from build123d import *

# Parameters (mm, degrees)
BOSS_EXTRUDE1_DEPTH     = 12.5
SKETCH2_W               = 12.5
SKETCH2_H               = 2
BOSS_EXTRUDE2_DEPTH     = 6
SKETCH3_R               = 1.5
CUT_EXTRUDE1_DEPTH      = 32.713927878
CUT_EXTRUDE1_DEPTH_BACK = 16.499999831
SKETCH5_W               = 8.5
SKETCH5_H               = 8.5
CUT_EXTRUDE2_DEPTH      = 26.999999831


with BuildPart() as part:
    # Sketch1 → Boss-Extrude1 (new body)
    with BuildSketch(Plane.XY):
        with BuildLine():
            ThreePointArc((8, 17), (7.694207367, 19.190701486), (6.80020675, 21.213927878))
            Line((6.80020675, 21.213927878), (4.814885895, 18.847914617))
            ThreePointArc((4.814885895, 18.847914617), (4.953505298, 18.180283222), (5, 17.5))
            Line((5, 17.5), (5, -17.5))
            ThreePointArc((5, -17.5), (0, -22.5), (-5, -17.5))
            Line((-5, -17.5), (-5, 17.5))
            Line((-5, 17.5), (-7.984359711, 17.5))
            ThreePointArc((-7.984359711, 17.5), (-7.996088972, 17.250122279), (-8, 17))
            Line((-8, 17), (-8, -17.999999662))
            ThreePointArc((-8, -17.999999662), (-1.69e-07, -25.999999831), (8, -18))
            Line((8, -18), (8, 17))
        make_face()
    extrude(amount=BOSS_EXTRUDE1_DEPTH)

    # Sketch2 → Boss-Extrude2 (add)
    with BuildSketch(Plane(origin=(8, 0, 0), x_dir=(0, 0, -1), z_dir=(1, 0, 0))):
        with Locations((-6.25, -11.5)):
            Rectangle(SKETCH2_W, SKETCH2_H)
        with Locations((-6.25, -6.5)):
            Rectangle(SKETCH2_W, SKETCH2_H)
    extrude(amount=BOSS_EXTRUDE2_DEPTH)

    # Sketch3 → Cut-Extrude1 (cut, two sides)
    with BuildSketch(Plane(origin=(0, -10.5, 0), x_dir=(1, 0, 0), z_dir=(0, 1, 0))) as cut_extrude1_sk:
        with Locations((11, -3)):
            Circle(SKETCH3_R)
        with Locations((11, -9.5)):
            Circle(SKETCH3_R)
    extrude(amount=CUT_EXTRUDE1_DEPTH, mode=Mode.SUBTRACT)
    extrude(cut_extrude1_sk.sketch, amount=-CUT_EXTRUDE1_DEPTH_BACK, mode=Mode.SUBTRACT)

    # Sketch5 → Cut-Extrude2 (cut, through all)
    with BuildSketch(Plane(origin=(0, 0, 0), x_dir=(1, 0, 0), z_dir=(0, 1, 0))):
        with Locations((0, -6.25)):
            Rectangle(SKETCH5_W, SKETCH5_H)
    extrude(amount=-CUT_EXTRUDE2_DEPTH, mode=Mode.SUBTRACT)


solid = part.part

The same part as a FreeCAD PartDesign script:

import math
import FreeCAD as App
import Part
import Sketcher
Q = App.Units.Quantity


def add_polygon(sketch, points):
    """Adds a closed chain of lines whose ends are joined by coincident constraints."""
    first, n = sketch.GeometryCount, len(points)
    for a, b in zip(points, points[1:] + points[:1]):
        sketch.addGeometry(Part.LineSegment(App.Vector(*a, 0), App.Vector(*b, 0)), False)
    for i in range(n):
        sketch.addConstraint(Sketcher.Constraint("Coincident", first + i, 2, first + (i + 1) % n, 1))

doc = App.newDocument("Part")
body = doc.addObject("PartDesign::Body", "Body")

sketch1 = body.newObject("Sketcher::SketchObject", "Sketch")
sketch1.AttachmentSupport = (doc.getObject("XY_Plane"), [""])
sketch1.MapMode = "FlatFace"
sketch1.addGeometry(Part.ArcOfCircle(Part.Circle(App.Vector(0, 17, 0), App.Vector(0, 0, 1), 8), math.radians(0), math.radians(31.78552)), False)
sketch1.addGeometry(Part.LineSegment(App.Vector(6.800207, 21.213928, 0), App.Vector(4.814886, 18.847915, 0)), False)
sketch1.addGeometry(Part.ArcOfCircle(Part.Circle(App.Vector(0, 17.5, 0), App.Vector(0, 0, 1), 5), math.radians(0), math.radians(15.63945)), False)
sketch1.addGeometry(Part.LineSegment(App.Vector(5, 17.5, 0), App.Vector(5, -17.5, 0)), False)
sketch1.addGeometry(Part.ArcOfCircle(Part.Circle(App.Vector(0, -17.5, 0), App.Vector(0, 0, 1), 5), math.radians(180), math.radians(360)), False)
sketch1.addGeometry(Part.LineSegment(App.Vector(-5, -17.5, 0), App.Vector(-5, 17.5, 0)), False)
sketch1.addGeometry(Part.LineSegment(App.Vector(-5, 17.5, 0), App.Vector(-7.98436, 17.5, 0)), False)
sketch1.addGeometry(Part.ArcOfCircle(Part.Circle(App.Vector(-0.000001, 17, 0), App.Vector(0, 0, 1), 7.999999), math.radians(176.416678), math.radians(180)), False)
sketch1.addGeometry(Part.LineSegment(App.Vector(-8, 17, 0), App.Vector(-8, -18, 0)), False)
sketch1.addGeometry(Part.ArcOfCircle(Part.Circle(App.Vector(0, -18, 0), App.Vector(0, 0, 1), 8), math.radians(179.999999), math.radians(359.999999)), False)
sketch1.addGeometry(Part.LineSegment(App.Vector(8, -18, 0), App.Vector(8, 17, 0)), False)
sketch1.addConstraint(Sketcher.Constraint("Coincident", 0, 2, 1, 1))
sketch1.addConstraint(Sketcher.Constraint("Coincident", 1, 2, 2, 2))
sketch1.addConstraint(Sketcher.Constraint("Tangent", 2, 1, 3, 1))
sketch1.addConstraint(Sketcher.Constraint("Tangent", 3, 2, 4, 2))
sketch1.addConstraint(Sketcher.Constraint("Tangent", 4, 1, 5, 1))
sketch1.addConstraint(Sketcher.Constraint("Coincident", 5, 2, 6, 1))
sketch1.addConstraint(Sketcher.Constraint("Coincident", 6, 2, 7, 1))
sketch1.addConstraint(Sketcher.Constraint("Tangent", 7, 2, 8, 1))
sketch1.addConstraint(Sketcher.Constraint("Tangent", 8, 2, 9, 1))
sketch1.addConstraint(Sketcher.Constraint("Tangent", 9, 2, 10, 1))
sketch1.addConstraint(Sketcher.Constraint("Tangent", 10, 2, 0, 1))
sketch1.addConstraint(Sketcher.Constraint("Vertical", 3))
sketch1.addConstraint(Sketcher.Constraint("Vertical", 5))
sketch1.addConstraint(Sketcher.Constraint("Horizontal", 6))
sketch1.addConstraint(Sketcher.Constraint("Vertical", 8))
sketch1.addConstraint(Sketcher.Constraint("Vertical", 10))
sketch1.addConstraint(Sketcher.Constraint("Coincident", 7, 3, 0, 3))
sketch1.addConstraint(Sketcher.Constraint("Equal", 2, 4))
sketch1.addConstraint(Sketcher.Constraint("Equal", 0, 7))
sketch1.addConstraint(Sketcher.Constraint("Symmetric", 2, 3, 4, 3, -1, 1))
sketch1.addConstraint(Sketcher.Constraint("PointOnObject", 0, 3, -2))
sketch1.addConstraint(Sketcher.Constraint("Horizontal", 2, 1, 5, 2))
sketch1.addConstraint(Sketcher.Constraint("Equal", 5, 8))
sketch1.addConstraint(Sketcher.Constraint("Radius", 0, 8.0))
sketch1.addConstraint(Sketcher.Constraint("Radius", 2, 5.0))
sketch1.addConstraint(Sketcher.Constraint("DistanceY", 3, 2, 3, 1, 35.0))
sketch1.addConstraint(Sketcher.Constraint("Angle", 1, Q("-130 deg")))
sketch1.addConstraint(Sketcher.Constraint("DistanceY", -1, 1, 0, 3, 17.0))
sketch1.addConstraint(Sketcher.Constraint("Distance", 1, 3.088611))
pad1 = body.newObject("PartDesign::Pad", "Pad")
pad1.Profile = sketch1
pad1.Length = 12.5

sketch2 = body.newObject("Sketcher::SketchObject", "Sketch001")
sketch2.AttachmentSupport = (doc.getObject("YZ_Plane"), [""])
sketch2.MapMode = "FlatFace"
sketch2.AttachmentOffset = App.Placement(App.Vector(0, 0, 8), App.Rotation())
add_polygon(sketch2, [(-10.5, 12.5), (-12.5, 12.5), (-12.5, 0), (-10.5, 0)])
add_polygon(sketch2, [(-5.5, 12.5), (-7.5, 12.5), (-7.5, 0), (-5.5, 0)])
sketch2.addConstraint(Sketcher.Constraint("Horizontal", 0))
sketch2.addConstraint(Sketcher.Constraint("Vertical", 1))
sketch2.addConstraint(Sketcher.Constraint("Horizontal", 2))
sketch2.addConstraint(Sketcher.Constraint("Vertical", 3))
sketch2.addConstraint(Sketcher.Constraint("Horizontal", 4))
sketch2.addConstraint(Sketcher.Constraint("Vertical", 5))
sketch2.addConstraint(Sketcher.Constraint("Horizontal", 6))
sketch2.addConstraint(Sketcher.Constraint("Vertical", 7))
sketch2.addConstraint(Sketcher.Constraint("PointOnObject", 1, 2, -1))
sketch2.addConstraint(Sketcher.Constraint("PointOnObject", 5, 2, -1))
sketch2.addConstraint(Sketcher.Constraint("Horizontal", 3, 2, 4, 2))
sketch2.addConstraint(Sketcher.Constraint("Equal", 2, 4))
sketch2.addConstraint(Sketcher.Constraint("DistanceX", 0, 2, 0, 1, 2.0))
sketch2.addConstraint(Sketcher.Constraint("DistanceY", 1, 2, 1, 1, 12.5))
sketch2.addConstraint(Sketcher.Constraint("DistanceX", 3, 2, 4, 2, 3.0))
sketch2.addConstraint(Sketcher.Constraint("DistanceX", 0, 2, -1, 1, 12.5))
pad2 = body.newObject("PartDesign::Pad", "Pad001")
pad2.Profile = sketch2
pad2.Length = 6

sketch3 = body.newObject("Sketcher::SketchObject", "Sketch002")
sketch3.AttachmentSupport = (doc.getObject("XZ_Plane"), [""])
sketch3.MapMode = "FlatFace"
sketch3.AttachmentOffset = App.Placement(App.Vector(0, 0, 10.5), App.Rotation())
sketch3.addGeometry(Part.Circle(App.Vector(11, 3, 0), App.Vector(0, 0, 1), 1.5), False)
sketch3.addGeometry(Part.Circle(App.Vector(11, 9.5, 0), App.Vector(0, 0, 1), 1.5), False)
sketch3.addConstraint(Sketcher.Constraint("Equal", 0, 1))
sketch3.addConstraint(Sketcher.Constraint("Vertical", 0, 3, 1, 3))
sketch3.addConstraint(Sketcher.Constraint("Diameter", 0, 3.0))
sketch3.addConstraint(Sketcher.Constraint("DistanceX", -1, 1, 0, 3, 11.0))
sketch3.addConstraint(Sketcher.Constraint("DistanceY", -1, 1, 0, 3, 3.0))
sketch3.addConstraint(Sketcher.Constraint("DistanceY", -1, 1, 1, 3, 9.5))
pocket1 = body.newObject("PartDesign::Pocket", "Pocket")
pocket1.Profile = sketch3
pocket1.Type = "ThroughAll"
pocket1.Midplane = True

sketch4 = body.newObject("Sketcher::SketchObject", "Sketch003")
sketch4.AttachmentSupport = (doc.getObject("XZ_Plane"), [""])
sketch4.MapMode = "FlatFace"
add_polygon(sketch4, [(-4.25, 2), (-4.25, 10.5), (4.25, 10.5), (4.25, 2)])
sketch4.addConstraint(Sketcher.Constraint("Vertical", 0))
sketch4.addConstraint(Sketcher.Constraint("Horizontal", 1))
sketch4.addConstraint(Sketcher.Constraint("Vertical", 2))
sketch4.addConstraint(Sketcher.Constraint("Horizontal", 3))
sketch4.addConstraint(Sketcher.Constraint("Equal", 3, 0))
sketch4.addConstraint(Sketcher.Constraint("DistanceX", 1, 1, 1, 2, 8.5))
sketch4.addConstraint(Sketcher.Constraint("DistanceY", -1, 1, 2, 2, 2.0))
sketch4.addConstraint(Sketcher.Constraint("DistanceX", 0, 2, -1, 1, 4.25))
pocket2 = body.newObject("PartDesign::Pocket", "Pocket001")
pocket2.Profile = sketch4
pocket2.Type = "ThroughAll"
pocket2.Reversed = True

doc.recompute()
